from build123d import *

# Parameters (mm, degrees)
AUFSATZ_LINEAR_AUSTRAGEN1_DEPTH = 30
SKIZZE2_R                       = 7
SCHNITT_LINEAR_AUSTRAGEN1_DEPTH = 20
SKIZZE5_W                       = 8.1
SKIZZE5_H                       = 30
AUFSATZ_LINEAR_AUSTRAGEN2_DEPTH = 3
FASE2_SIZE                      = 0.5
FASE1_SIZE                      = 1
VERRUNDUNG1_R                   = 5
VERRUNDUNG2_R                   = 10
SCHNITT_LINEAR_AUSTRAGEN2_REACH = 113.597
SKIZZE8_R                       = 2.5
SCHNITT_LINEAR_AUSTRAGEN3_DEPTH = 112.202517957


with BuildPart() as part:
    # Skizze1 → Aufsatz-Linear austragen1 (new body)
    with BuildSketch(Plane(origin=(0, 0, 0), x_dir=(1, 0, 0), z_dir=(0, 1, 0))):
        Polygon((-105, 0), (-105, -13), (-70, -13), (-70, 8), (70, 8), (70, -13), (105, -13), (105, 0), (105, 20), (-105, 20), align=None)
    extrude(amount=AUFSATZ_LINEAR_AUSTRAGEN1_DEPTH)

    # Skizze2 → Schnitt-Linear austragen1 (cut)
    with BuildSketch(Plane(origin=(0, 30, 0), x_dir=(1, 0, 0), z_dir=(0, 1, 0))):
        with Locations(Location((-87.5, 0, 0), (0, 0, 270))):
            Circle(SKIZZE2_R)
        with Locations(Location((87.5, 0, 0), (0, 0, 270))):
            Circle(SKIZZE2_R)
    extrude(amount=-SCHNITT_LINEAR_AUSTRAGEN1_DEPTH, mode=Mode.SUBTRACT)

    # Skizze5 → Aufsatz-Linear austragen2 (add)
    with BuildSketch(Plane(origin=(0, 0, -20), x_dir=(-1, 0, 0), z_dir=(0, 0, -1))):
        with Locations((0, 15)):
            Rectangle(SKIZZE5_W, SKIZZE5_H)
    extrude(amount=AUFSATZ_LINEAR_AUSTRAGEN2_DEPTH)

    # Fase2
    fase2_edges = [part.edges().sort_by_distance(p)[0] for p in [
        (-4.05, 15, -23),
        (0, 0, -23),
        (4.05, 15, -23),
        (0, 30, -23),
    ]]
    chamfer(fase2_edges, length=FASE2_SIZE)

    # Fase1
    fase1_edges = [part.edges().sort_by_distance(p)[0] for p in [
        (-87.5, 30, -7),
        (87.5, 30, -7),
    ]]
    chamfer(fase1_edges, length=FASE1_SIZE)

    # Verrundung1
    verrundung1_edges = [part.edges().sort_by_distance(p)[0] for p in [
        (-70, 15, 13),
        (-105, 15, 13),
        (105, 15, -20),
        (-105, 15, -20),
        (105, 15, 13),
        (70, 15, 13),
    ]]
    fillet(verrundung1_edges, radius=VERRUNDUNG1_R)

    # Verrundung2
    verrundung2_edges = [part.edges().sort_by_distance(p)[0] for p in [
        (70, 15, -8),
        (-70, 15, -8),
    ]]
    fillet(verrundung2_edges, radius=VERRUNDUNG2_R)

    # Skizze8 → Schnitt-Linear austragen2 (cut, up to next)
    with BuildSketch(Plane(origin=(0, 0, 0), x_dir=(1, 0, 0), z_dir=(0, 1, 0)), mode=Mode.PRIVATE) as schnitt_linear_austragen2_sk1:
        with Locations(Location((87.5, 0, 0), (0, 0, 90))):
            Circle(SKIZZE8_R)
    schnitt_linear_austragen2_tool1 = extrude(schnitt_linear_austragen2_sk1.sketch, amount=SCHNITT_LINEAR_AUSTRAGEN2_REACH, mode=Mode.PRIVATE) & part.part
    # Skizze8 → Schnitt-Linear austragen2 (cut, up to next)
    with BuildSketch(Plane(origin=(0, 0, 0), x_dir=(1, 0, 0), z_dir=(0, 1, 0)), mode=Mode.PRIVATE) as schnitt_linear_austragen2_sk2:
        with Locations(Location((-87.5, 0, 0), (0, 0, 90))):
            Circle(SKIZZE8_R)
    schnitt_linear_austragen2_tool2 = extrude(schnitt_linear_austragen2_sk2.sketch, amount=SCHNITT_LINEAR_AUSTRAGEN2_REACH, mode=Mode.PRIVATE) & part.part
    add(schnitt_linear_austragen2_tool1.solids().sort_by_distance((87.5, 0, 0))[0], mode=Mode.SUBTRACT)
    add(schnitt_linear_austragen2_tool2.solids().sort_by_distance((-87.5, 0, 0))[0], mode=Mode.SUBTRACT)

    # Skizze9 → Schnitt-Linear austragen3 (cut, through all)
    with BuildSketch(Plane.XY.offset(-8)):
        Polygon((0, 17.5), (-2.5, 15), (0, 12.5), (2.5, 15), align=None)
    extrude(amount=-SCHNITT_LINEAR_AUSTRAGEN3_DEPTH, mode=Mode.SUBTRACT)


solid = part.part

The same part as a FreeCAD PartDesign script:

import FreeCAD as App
import Part
import Sketcher
from FreeCAD import Vector


def edges_at(feature, points):
    """Names of the edges that pass closest to the given points."""
    edges = feature.Shape.Edges
    near = lambda p: min(range(len(edges)), key=lambda i: edges[i].distToShape(Part.Vertex(*p))[0])
    return sorted({f"Edge{near(p) + 1}" for p in points})


def add_polygon(sketch, points):
    """Adds a closed chain of lines whose ends are joined by coincident constraints."""
    first, n = sketch.GeometryCount, len(points)
    for a, b in zip(points, points[1:] + points[:1]):
        sketch.addGeometry(Part.LineSegment(App.Vector(*a, 0), App.Vector(*b, 0)), False)
    for i in range(n):
        sketch.addConstraint(Sketcher.Constraint("Coincident", first + i, 2, first + (i + 1) % n, 1))

doc = App.newDocument("Part")
params = doc.addObject("Spreadsheet::Sheet", "Params")
for row, (alias, value) in enumerate([
    ("sketch1_width", "35 mm"),
    ("sketch1_width2", "140 mm"),
    ("sketch1_height", "21 mm"),
    ("sketch1_height2", "33 mm"),
    ("pad1_length", "30 mm"),
    ("sketch2_diameter", "14 mm"),
    ("pocket1_length", "20 mm"),
    ("sketch3_height", "30 mm"),
    ("sketch3_width", "8.1 mm"),
    ("pad2_length", "3 mm"),
    ("chamfer_size", "0.5 mm"),
    ("chamfer2_size", "1 mm"),
    ("fillet_radius", "5 mm"),
    ("fillet2_radius", "10 mm"),
    ("sketch4_diameter", "5 mm"),
    ("sketch5_diameter", "5 mm"),
], start=1):
    params.set(f"A{row}", alias)
    params.set(f"B{row}", "=" + value)
    params.setAlias(f"B{row}", alias)

body = doc.addObject("PartDesign::Body", "Body")

# Sketch on XZ plane
sketch1 = doc.addObject("Sketcher::SketchObject", "Sketch")
body.addObject(sketch1)
sketch1.AttachmentSupport = (doc.XZ_Plane, [""])
sketch1.MapMode = "FlatFace"
add_polygon(sketch1, [(-105, 13), (-70, 13), (-70, -8), (70, -8), (70, 13), (105, 13), (105, -20), (-105, -20)])  # lines 0-7
sketch1.addConstraint([
    Sketcher.Constraint("Horizontal", 0),
    Sketcher.Constraint("Vertical", 1),
    Sketcher.Constraint("Horizontal", 2),
    Sketcher.Constraint("Vertical", 3),
    Sketcher.Constraint("Horizontal", 4),
    Sketcher.Constraint("Vertical", 5),
    Sketcher.Constraint("Horizontal", 6),
    Sketcher.Constraint("Vertical", 7),
    Sketcher.Constraint("Symmetric", 0, 2, 3, 2, -2),
    Sketcher.Constraint("Equal", 0, 4),
    Sketcher.Constraint("DistanceX", 0, 1, 0, 2, 35.0),
    Sketcher.Constraint("DistanceX", 2, 1, 2, 2, 140.0),
    Sketcher.Constraint("DistanceY", 1, 2, 1, 1, 21.0),
    Sketcher.Constraint("DistanceY", 5, 2, 5, 1, 33.0),
    Sketcher.Constraint("DistanceY", -1, 1, 0, 2, 13.0),
])
sketch1.setExpression("Constraints[18]", "Params.sketch1_width")
sketch1.setExpression("Constraints[19]", "Params.sketch1_width2")
sketch1.setExpression("Constraints[20]", "Params.sketch1_height")
sketch1.setExpression("Constraints[21]", "Params.sketch1_height2")
pad1 = doc.addObject("PartDesign::Pad", "Pad")
body.addObject(pad1)
pad1.Profile = sketch1
pad1.setExpression("Length", "Params.pad1_length")
pad1.Reversed = True

# Sketch on XZ plane
sketch2 = doc.addObject("Sketcher::SketchObject", "Sketch001")
body.addObject(sketch2)
sketch2.AttachmentSupport = (doc.XZ_Plane, [""])
sketch2.MapMode = "FlatFace"
sketch2.AttachmentOffset = App.Placement(Vector(0, 0, -30), App.Rotation())
sketch2.addGeometry([
    Part.Circle(Vector(-87.5, 0, 0), Vector(0, 0, 1), 7),
    Part.Circle(Vector(87.5, 0, 0), Vector(0, 0, 1), 7),
], False)
sketch2.addConstraint([
    Sketcher.Constraint("Equal", 0, 1),
    Sketcher.Constraint("Symmetric", 0, 3, 1, 3, -1, 1),
    Sketcher.Constraint("PointOnObject", 0, 3, -1),
    Sketcher.Constraint("Diameter", 0, 14.0),
    Sketcher.Constraint("DistanceX", 0, 3, 1, 3, 175.0),
])
sketch2.setExpression("Constraints[3]", "Params.sketch2_diameter")
pocket1 = doc.addObject("PartDesign::Pocket", "Pocket")
body.addObject(pocket1)
pocket1.Profile = sketch2
pocket1.setExpression("Length", "Params.pocket1_length")
pocket1.Reversed = True

# Sketch on XY plane
sketch3 = doc.addObject("Sketcher::SketchObject", "Sketch002")
body.addObject(sketch3)
sketch3.AttachmentSupport = (doc.XY_Plane, [""])
sketch3.MapMode = "FlatFace"
sketch3.AttachmentOffset = App.Placement(Vector(0, 0, -20), App.Rotation())
add_polygon(sketch3, [(4.05, 30), (4.05, 0), (-4.05, 0), (-4.05, 30)])  # lines 0-3
sketch3.addConstraint([
    Sketcher.Constraint("Vertical", 0),
    Sketcher.Constraint("Horizontal", 1),
    Sketcher.Constraint("Vertical", 2),
    Sketcher.Constraint("Horizontal", 3),
    Sketcher.Constraint("Symmetric", 0, 2, 1, 2, -1, 1),
    Sketcher.Constraint("DistanceY", 0, 2, 0, 1, 30.0),
    Sketcher.Constraint("DistanceX", 1, 2, 1, 1, 8.1),
])
sketch3.setExpression("Constraints[9]", "Params.sketch3_height")
sketch3.setExpression("Constraints[10]", "Params.sketch3_width")
pad2 = doc.addObject("PartDesign::Pad", "Pad001")
body.addObject(pad2)
pad2.Profile = sketch3
pad2.setExpression("Length", "Params.pad2_length")
pad2.Reversed = True
doc.recompute()

chamfer = doc.addObject("PartDesign::Chamfer", "Chamfer")
body.addObject(chamfer)
chamfer.Base = (pad2, edges_at(pad2, [
    (-4.05, 15, -23),
    (0, 0, -23),
    (4.05, 15, -23),
    (0, 30, -23),
]))
chamfer.setExpression("Size", "Params.chamfer_size")
doc.recompute()

chamfer2 = doc.addObject("PartDesign::Chamfer", "Chamfer001")
body.addObject(chamfer2)
chamfer2.Base = (chamfer, edges_at(chamfer, [(-87.5, 30, -7), (87.5, 30, -7)]))
chamfer2.setExpression("Size", "Params.chamfer2_size")
doc.recompute()

fillet = doc.addObject("PartDesign::Fillet", "Fillet")
body.addObject(fillet)
fillet.Base = (chamfer2, edges_at(chamfer2, [
    (-70, 15, 13),
    (-105, 15, 13),
    (105, 15, -20),
    (-105, 15, -20),
    (105, 15, 13),
    (70, 15, 13),
]))
fillet.setExpression("Radius", "Params.fillet_radius")
doc.recompute()

fillet2 = doc.addObject("PartDesign::Fillet", "Fillet001")
body.addObject(fillet2)
fillet2.Base = (fillet, edges_at(fillet, [(70, 15, -8), (-70, 15, -8)]))
fillet2.setExpression("Radius", "Params.fillet2_radius")

# Sketch on XZ plane
sketch4 = doc.addObject("Sketcher::SketchObject", "Sketch003")
body.addObject(sketch4)
sketch4.AttachmentSupport = (doc.XZ_Plane, [""])
sketch4.MapMode = "FlatFace"
sketch4.addGeometry(Part.Circle(Vector(87.5, 0, 0), Vector(0, 0, 1), 2.5), False)
sketch4.addConstraint([
    Sketcher.Constraint("PointOnObject", 0, 3, -1),
    Sketcher.Constraint("Diameter", 0, 5.0),
    Sketcher.Constraint("DistanceX", -1, 1, 0, 3, 87.5),
])
sketch4.setExpression("Constraints[1]", "Params.sketch4_diameter")
pocket2 = doc.addObject("PartDesign::Pocket", "Pocket001")
body.addObject(pocket2)
pocket2.Profile = sketch4
pocket2.Type = "UpToFirst"

# Sketch on XZ plane
sketch5 = doc.addObject("Sketcher::SketchObject", "Sketch004")
body.addObject(sketch5)
sketch5.AttachmentSupport = (doc.XZ_Plane, [""])
sketch5.MapMode = "FlatFace"
sketch5.addGeometry(Part.Circle(Vector(-87.5, 0, 0), Vector(0, 0, 1), 2.5), False)
sketch5.addConstraint([
    Sketcher.Constraint("PointOnObject", 0, 3, -1),
    Sketcher.Constraint("Diameter", 0, 5.0),
    Sketcher.Constraint("DistanceX", 0, 3, -1, 1, 87.5),
])
sketch5.setExpression("Constraints[1]", "Params.sketch5_diameter")
pocket3 = doc.addObject("PartDesign::Pocket", "Pocket002")
body.addObject(pocket3)
pocket3.Profile = sketch5
pocket3.Type = "UpToFirst"

# Sketch on XY plane
sketch6 = doc.addObject("Sketcher::SketchObject", "Sketch005")
body.addObject(sketch6)
sketch6.AttachmentSupport = (doc.XY_Plane, [""])
sketch6.MapMode = "FlatFace"
sketch6.AttachmentOffset = App.Placement(Vector(0, 0, -8), App.Rotation())
add_polygon(sketch6, [(0, 17.5), (-2.5, 15), (0, 12.5), (2.5, 15)])  # lines 0-3
sketch6.addConstraint([
    Sketcher.Constraint("Symmetric", 0, 2, 2, 2, -2),
    Sketcher.Constraint("PointOnObject", 1, 2, -2),
    Sketcher.Constraint("PointOnObject", 3, 2, -2),
    Sketcher.Constraint("Perpendicular", 0, 1),
    Sketcher.Constraint("Perpendicular", 1, 2),
    Sketcher.Constraint("DistanceY", -1, 1, 0, 2, 15.0),
    Sketcher.Constraint("DistanceX", 0, 2, 2, 2, 5.0),
])
pocket4 = doc.addObject("PartDesign::Pocket", "Pocket003")
body.addObject(pocket4)
pocket4.Profile = sketch6
pocket4.Type = "ThroughAll"

doc.recompute()
